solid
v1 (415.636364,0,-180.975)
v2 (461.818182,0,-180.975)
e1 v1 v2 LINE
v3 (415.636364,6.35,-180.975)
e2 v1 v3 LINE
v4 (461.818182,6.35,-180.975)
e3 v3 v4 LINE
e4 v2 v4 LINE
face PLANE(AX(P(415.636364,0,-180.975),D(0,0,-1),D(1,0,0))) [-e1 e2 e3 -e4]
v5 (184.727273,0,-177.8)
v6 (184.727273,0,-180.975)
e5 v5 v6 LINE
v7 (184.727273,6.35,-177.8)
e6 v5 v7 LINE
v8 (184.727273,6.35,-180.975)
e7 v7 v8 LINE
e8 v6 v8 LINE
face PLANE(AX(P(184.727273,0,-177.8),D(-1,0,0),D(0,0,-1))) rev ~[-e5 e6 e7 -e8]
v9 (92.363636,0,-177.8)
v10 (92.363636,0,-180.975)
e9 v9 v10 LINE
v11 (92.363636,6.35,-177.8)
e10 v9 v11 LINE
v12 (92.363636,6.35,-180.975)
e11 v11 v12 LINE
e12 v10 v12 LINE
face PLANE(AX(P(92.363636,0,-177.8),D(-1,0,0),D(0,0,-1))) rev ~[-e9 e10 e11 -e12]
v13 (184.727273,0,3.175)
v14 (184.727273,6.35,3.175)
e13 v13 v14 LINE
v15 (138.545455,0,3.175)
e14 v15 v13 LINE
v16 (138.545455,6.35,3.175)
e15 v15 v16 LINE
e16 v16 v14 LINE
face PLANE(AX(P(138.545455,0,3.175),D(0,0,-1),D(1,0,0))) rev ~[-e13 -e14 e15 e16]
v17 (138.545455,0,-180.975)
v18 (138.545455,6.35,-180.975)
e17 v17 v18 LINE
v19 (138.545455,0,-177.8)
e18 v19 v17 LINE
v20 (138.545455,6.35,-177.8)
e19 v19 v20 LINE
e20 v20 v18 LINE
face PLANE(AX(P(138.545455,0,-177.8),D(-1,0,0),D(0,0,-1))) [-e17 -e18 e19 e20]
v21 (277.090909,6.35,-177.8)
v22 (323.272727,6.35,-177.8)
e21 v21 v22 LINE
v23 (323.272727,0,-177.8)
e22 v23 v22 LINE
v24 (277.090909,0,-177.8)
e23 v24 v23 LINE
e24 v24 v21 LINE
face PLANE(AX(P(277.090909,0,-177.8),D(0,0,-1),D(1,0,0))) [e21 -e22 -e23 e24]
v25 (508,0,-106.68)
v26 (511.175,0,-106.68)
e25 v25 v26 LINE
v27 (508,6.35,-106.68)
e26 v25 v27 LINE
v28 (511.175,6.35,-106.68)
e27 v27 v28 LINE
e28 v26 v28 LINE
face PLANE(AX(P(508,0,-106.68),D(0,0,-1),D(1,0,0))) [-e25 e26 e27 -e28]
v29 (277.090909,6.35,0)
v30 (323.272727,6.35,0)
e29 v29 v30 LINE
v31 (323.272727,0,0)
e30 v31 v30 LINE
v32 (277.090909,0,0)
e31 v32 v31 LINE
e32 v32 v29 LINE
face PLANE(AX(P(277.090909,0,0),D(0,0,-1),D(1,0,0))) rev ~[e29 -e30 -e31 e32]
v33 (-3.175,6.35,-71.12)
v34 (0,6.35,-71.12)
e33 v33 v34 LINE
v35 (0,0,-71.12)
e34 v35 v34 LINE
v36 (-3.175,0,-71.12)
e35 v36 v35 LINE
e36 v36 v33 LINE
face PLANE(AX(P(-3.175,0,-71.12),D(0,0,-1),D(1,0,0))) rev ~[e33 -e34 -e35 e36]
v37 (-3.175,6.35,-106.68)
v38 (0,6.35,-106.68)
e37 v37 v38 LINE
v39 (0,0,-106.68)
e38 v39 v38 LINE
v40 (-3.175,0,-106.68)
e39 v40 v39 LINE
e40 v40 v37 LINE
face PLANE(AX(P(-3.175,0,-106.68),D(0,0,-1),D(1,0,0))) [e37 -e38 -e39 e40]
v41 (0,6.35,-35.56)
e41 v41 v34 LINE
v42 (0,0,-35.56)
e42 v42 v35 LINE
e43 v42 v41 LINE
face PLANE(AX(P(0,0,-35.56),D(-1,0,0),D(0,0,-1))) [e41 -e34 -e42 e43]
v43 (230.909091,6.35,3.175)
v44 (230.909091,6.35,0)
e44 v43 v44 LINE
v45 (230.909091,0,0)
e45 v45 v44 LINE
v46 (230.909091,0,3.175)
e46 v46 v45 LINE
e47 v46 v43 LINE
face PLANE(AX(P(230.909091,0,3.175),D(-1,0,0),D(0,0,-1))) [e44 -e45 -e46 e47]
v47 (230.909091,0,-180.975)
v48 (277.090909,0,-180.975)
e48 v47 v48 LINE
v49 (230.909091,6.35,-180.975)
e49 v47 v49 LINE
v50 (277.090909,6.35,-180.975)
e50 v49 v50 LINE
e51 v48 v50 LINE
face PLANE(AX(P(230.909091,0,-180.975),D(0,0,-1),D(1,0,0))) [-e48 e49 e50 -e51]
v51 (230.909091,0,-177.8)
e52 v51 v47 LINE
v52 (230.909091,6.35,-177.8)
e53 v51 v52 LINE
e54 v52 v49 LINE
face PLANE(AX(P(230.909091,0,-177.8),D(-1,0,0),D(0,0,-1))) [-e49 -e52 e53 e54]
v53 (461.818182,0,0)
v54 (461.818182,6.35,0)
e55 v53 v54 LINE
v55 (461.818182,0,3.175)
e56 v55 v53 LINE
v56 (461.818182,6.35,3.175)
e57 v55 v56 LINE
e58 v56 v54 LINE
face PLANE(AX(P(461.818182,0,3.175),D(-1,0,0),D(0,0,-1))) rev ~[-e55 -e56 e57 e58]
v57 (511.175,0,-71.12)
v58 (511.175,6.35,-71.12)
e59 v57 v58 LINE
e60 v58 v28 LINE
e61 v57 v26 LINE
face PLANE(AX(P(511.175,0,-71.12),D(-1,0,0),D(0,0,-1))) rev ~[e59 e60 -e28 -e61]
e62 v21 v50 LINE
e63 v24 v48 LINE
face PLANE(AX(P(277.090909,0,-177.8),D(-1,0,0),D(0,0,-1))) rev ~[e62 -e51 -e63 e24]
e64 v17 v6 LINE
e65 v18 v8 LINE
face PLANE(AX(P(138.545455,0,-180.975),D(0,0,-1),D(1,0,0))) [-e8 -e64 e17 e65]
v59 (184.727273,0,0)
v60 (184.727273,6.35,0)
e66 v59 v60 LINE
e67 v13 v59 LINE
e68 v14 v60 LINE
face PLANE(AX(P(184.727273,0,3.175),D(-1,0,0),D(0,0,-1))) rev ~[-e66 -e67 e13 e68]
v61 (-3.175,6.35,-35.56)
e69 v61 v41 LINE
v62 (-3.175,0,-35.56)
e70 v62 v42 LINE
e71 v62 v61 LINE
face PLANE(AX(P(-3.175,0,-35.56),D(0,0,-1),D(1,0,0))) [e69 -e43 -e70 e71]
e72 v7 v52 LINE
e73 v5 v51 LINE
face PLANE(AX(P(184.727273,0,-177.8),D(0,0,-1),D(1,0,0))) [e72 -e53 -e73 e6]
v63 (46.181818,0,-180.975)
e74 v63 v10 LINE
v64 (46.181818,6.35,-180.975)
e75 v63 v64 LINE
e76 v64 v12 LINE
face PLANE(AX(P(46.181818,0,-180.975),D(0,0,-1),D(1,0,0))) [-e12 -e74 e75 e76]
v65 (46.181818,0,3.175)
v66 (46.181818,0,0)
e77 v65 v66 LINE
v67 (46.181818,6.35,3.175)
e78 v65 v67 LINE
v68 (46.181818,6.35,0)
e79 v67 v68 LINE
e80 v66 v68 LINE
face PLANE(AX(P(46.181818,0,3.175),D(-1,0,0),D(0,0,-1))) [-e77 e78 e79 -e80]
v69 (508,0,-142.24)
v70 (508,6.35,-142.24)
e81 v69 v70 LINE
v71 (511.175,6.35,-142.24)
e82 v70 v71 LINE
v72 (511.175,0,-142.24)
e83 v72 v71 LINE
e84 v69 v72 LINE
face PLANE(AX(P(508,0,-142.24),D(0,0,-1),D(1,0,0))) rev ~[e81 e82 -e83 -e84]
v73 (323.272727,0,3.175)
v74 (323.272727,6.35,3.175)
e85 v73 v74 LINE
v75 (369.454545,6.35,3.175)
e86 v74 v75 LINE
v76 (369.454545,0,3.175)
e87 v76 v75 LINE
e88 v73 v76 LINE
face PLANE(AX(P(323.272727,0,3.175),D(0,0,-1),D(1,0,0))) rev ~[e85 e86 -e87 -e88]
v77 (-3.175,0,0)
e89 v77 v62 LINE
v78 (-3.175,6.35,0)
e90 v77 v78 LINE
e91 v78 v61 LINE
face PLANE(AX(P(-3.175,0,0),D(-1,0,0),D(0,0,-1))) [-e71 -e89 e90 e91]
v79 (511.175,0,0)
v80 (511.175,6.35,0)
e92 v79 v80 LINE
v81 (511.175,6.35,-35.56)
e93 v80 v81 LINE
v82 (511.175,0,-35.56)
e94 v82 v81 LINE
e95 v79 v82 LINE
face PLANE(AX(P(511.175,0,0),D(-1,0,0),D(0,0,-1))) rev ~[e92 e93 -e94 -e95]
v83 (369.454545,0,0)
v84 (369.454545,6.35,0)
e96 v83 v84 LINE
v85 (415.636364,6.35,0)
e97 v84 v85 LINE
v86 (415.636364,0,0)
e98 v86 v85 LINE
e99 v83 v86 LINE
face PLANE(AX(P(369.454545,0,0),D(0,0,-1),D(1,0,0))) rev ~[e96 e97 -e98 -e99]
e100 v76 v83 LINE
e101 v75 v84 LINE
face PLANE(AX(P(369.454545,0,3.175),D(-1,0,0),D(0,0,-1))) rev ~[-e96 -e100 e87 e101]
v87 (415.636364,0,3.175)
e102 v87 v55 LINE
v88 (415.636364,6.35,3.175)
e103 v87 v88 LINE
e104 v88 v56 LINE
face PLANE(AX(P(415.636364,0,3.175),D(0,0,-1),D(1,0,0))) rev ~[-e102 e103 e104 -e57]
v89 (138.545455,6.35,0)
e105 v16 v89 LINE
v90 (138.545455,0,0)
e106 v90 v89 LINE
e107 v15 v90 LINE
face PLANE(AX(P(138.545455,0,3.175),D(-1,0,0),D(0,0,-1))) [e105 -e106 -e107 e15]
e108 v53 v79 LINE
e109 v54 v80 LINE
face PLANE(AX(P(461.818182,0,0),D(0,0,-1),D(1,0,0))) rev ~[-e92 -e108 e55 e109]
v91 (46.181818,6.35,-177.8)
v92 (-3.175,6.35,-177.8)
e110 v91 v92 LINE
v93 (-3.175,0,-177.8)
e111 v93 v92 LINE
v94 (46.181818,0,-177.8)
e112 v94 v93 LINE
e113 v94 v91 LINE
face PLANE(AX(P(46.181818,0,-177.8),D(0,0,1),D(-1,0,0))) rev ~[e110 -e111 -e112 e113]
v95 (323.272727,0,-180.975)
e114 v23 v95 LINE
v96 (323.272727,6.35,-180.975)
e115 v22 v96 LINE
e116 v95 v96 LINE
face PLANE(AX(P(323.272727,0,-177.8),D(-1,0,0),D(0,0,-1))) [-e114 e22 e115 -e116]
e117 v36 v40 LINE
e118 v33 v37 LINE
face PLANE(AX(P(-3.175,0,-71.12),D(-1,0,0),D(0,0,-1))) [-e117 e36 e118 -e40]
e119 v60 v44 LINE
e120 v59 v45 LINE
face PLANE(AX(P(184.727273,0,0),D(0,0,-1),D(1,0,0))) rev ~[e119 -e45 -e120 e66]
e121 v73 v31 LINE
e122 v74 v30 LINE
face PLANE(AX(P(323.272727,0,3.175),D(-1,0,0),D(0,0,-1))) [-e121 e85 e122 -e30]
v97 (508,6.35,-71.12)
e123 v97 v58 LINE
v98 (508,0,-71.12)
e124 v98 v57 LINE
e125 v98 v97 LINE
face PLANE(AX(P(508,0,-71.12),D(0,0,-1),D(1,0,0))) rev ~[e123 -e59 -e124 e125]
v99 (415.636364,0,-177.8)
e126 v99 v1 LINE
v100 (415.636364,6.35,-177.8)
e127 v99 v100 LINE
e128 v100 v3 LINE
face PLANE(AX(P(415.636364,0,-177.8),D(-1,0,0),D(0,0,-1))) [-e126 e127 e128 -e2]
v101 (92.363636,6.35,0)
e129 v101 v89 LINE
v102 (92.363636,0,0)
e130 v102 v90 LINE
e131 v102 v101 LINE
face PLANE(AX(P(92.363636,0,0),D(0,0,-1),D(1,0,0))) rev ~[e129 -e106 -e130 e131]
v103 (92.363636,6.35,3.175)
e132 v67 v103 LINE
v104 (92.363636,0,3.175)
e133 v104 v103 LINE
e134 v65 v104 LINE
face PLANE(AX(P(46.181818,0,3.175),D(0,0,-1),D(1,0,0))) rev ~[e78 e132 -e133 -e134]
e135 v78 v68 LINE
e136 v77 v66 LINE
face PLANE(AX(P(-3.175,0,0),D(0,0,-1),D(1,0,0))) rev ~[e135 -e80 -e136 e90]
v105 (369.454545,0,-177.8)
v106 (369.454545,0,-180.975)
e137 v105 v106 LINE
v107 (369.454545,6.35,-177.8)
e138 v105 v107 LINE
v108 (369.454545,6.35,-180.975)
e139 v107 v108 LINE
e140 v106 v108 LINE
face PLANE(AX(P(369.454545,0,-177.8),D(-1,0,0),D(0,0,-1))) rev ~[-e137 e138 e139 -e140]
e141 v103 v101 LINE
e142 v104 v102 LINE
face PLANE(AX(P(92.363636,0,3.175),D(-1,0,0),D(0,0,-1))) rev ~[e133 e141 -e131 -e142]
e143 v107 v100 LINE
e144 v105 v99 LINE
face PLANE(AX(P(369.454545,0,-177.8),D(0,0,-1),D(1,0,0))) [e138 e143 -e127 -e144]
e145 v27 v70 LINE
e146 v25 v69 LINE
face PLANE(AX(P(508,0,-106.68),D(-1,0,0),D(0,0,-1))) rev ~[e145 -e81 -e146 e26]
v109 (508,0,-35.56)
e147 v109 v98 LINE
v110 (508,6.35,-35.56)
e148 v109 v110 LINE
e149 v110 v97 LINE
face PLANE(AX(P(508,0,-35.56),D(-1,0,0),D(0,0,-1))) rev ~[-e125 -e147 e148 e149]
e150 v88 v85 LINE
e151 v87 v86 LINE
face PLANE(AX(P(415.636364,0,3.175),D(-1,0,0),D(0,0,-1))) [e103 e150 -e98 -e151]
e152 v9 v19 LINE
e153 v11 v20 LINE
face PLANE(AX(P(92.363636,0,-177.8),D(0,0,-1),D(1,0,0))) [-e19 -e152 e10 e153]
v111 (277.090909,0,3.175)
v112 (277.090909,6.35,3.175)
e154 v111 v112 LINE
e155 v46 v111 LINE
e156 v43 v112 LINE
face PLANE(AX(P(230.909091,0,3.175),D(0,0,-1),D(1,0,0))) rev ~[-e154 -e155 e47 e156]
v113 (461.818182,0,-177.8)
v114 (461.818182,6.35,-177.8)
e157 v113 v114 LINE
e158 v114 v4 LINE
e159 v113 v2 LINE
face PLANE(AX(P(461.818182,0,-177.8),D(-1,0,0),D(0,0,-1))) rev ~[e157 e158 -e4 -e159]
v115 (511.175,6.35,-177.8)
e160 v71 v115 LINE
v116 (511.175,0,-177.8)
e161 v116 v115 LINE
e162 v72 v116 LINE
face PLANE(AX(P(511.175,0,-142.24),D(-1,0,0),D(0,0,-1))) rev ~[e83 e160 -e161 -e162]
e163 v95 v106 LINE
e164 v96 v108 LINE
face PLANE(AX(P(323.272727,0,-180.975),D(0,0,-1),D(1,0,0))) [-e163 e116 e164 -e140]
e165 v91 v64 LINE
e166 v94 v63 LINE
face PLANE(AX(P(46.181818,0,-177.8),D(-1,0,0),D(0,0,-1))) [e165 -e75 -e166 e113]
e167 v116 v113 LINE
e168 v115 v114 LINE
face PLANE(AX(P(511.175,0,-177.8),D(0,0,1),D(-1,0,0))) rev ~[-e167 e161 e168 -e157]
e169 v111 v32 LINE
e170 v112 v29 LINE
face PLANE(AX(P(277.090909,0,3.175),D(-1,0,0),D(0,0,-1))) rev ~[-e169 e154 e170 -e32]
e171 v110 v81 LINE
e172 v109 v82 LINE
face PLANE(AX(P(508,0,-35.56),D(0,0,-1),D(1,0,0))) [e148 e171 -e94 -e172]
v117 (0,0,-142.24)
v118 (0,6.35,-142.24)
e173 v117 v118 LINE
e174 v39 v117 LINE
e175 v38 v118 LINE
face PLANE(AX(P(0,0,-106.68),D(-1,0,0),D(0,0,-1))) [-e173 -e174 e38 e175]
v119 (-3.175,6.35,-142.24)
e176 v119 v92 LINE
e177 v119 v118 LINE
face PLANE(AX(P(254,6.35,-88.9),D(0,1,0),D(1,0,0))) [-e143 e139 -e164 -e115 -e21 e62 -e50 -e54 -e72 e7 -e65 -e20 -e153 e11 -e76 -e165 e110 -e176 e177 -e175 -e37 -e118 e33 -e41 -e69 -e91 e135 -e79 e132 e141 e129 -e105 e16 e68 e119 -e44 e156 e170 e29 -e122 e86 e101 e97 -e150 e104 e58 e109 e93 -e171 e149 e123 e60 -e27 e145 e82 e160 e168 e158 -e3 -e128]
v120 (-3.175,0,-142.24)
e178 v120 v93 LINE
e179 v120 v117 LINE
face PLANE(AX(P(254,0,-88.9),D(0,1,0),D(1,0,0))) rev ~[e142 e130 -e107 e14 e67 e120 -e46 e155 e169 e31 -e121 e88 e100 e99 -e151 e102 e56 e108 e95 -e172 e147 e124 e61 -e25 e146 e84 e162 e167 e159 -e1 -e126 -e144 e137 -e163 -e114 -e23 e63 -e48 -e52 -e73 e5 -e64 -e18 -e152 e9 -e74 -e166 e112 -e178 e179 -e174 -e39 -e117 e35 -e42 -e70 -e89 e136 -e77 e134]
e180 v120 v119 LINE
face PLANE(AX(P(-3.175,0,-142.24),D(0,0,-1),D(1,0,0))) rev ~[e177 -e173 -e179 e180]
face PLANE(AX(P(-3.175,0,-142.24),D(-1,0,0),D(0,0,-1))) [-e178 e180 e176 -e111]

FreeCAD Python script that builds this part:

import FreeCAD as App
import Part
import Sketcher
Q = App.Units.Quantity


def add_polygon(sketch, points):
    """Adds a closed chain of lines whose ends are joined by coincident constraints."""
    first, n = sketch.GeometryCount, len(points)
    for a, b in zip(points, points[1:] + points[:1]):
        sketch.addGeometry(Part.LineSegment(App.Vector(*a, 0), App.Vector(*b, 0)), False)
    for i in range(n):
        sketch.addConstraint(Sketcher.Constraint("Coincident", first + i, 2, first + (i + 1) % n, 1))

doc = App.newDocument("Part")
body = doc.addObject("PartDesign::Body", "Body")

sketch1 = doc.addObject("Sketcher::SketchObject", "Sketch")
body.addObject(sketch1)
sketch1.AttachmentSupport = (doc.XZ_Plane, [""])
sketch1.MapMode = "FlatFace"
add_polygon(sketch1, [(0, -71.1), (0, -35.6), (-3.2, -35.6), (-3.2, 0), (46.2, 0), (46.2, 3.2), (92.4, 3.2), (92.4, 0), (138.5, 0), (138.5, 3.2), (184.7, 3.2), (184.7, 0), (230.9, 0), (230.9, 3.2), (277.1, 3.2), (277.1, 0), (323.3, 0), (323.3, 3.2), (369.5, 3.2), (369.5, 0), (415.6, 0), (415.6, 3.2), (461.8, 3.2), (461.8, 0), (511.2, 0), (511.2, -35.6), (508, -35.6), (508, -71.1), (511.2, -71.1), (511.2, -106.7), (508, -106.7), (508, -142.2), (511.2, -142.2), (511.2, -177.8), (461.8, -177.8), (461.8, -181), (415.6, -181), (415.6, -177.8), (369.5, -177.8), (369.5, -181), (323.3, -181), (323.3, -177.8), (277.1, -177.8), (277.1, -181), (230.9, -181), (230.9, -177.8), (184.7, -177.8), (184.7, -181), (138.5, -181), (138.5, -177.8), (92.4, -177.8), (92.4, -181), (46.2, -181), (46.2, -177.8), (-3.2, -177.8), (-3.2, -142.2), (0, -142.2), (0, -106.7), (-3.2, -106.7), (-3.2, -71.1)])
sketch1.addConstraint([
    Sketcher.Constraint("Vertical", 0),
    Sketcher.Constraint("Horizontal", 1),
    Sketcher.Constraint("Vertical", 2),
    Sketcher.Constraint("Horizontal", 3),
    Sketcher.Constraint("Vertical", 4),
    Sketcher.Constraint("Horizontal", 5),
    Sketcher.Constraint("Vertical", 6),
    Sketcher.Constraint("Horizontal", 7),
    Sketcher.Constraint("Vertical", 8),
    Sketcher.Constraint("Horizontal", 9),
    Sketcher.Constraint("Vertical", 10),
    Sketcher.Constraint("Horizontal", 11),
    Sketcher.Constraint("Vertical", 12),
    Sketcher.Constraint("Horizontal", 13),
    Sketcher.Constraint("Vertical", 14),
    Sketcher.Constraint("Horizontal", 15),
    Sketcher.Constraint("Vertical", 16),
    Sketcher.Constraint("Horizontal", 17),
    Sketcher.Constraint("Vertical", 18),
    Sketcher.Constraint("Horizontal", 19),
    Sketcher.Constraint("Vertical", 20),
    Sketcher.Constraint("Horizontal", 21),
    Sketcher.Constraint("Vertical", 22),
    Sketcher.Constraint("Horizontal", 23),
    Sketcher.Constraint("Vertical", 24),
    Sketcher.Constraint("Horizontal", 25),
    Sketcher.Constraint("Vertical", 26),
    Sketcher.Constraint("Horizontal", 27),
    Sketcher.Constraint("Vertical", 28),
    Sketcher.Constraint("Horizontal", 29),
    Sketcher.Constraint("Vertical", 30),
    Sketcher.Constraint("Horizontal", 31),
    Sketcher.Constraint("Vertical", 32),
    Sketcher.Constraint("Horizontal", 33),
    Sketcher.Constraint("Vertical", 34),
    Sketcher.Constraint("Horizontal", 35),
    Sketcher.Constraint("Vertical", 36),
    Sketcher.Constraint("Horizontal", 37),
    Sketcher.Constraint("Vertical", 38),
    Sketcher.Constraint("Horizontal", 39),
    Sketcher.Constraint("Vertical", 40),
    Sketcher.Constraint("Horizontal", 41),
    Sketcher.Constraint("Vertical", 42),
    Sketcher.Constraint("Horizontal", 43),
    Sketcher.Constraint("Vertical", 44),
    Sketcher.Constraint("Horizontal", 45),
    Sketcher.Constraint("Vertical", 46),
    Sketcher.Constraint("Horizontal", 47),
    Sketcher.Constraint("Vertical", 48),
    Sketcher.Constraint("Horizontal", 49),
    Sketcher.Constraint("Vertical", 50),
    Sketcher.Constraint("Horizontal", 51),
    Sketcher.Constraint("Vertical", 52),
    Sketcher.Constraint("Horizontal", 53),
    Sketcher.Constraint("Vertical", 54),
    Sketcher.Constraint("Horizontal", 55),
    Sketcher.Constraint("Vertical", 56),
    Sketcher.Constraint("Horizontal", 57),
    Sketcher.Constraint("Vertical", 58),
    Sketcher.Constraint("Horizontal", 59),
    Sketcher.Constraint("PointOnObject", 0, 2, -2),
    Sketcher.Constraint("PointOnObject", 2, 2, -1),
    Sketcher.Constraint("PointOnObject", 6, 2, -1),
    Sketcher.Constraint("PointOnObject", 10, 2, -1),
    Sketcher.Constraint("PointOnObject", 14, 2, -1),
    Sketcher.Constraint("PointOnObject", 18, 2, -1),
    Sketcher.Constraint("PointOnObject", 22, 2, -1),
    Sketcher.Constraint("PointOnObject", 55, 2, -2),
    Sketcher.Constraint("Horizontal", 5, 2, 8, 2),
    Sketcher.Constraint("Horizontal", 9, 2, 12, 2),
    Sketcher.Constraint("Horizontal", 13, 2, 16, 2),
    Sketcher.Constraint("Horizontal", 17, 2, 20, 2),
    Sketcher.Constraint("Horizontal", 1, 2, 24, 2),
    Sketcher.Constraint("Horizontal", 33, 2, 36, 2),
    Sketcher.Constraint("Horizontal", 35, 2, 38, 2),
    Sketcher.Constraint("Horizontal", 37, 2, 40, 2),
    Sketcher.Constraint("Horizontal", 39, 2, 42, 2),
    Sketcher.Constraint("Horizontal", 41, 2, 44, 2),
    Sketcher.Constraint("Horizontal", 43, 2, 46, 2),
    Sketcher.Constraint("Horizontal", 45, 2, 48, 2),
    Sketcher.Constraint("Horizontal", 47, 2, 50, 2),
    Sketcher.Constraint("Horizontal", 49, 2, 52, 2),
    Sketcher.Constraint("Horizontal", 31, 2, 54, 2),
    Sketcher.Constraint("Horizontal", 29, 2, 56, 2),
    Sketcher.Constraint("Horizontal", 27, 2, 58, 2),
    Sketcher.Constraint("Vertical", 24, 2, 27, 2),
    Sketcher.Constraint("Vertical", 26, 2, 29, 2),
    Sketcher.Constraint("Vertical", 28, 2, 31, 2),
    Sketcher.Constraint("Vertical", 22, 2, 33, 2),
    Sketcher.Constraint("Vertical", 20, 2, 35, 2),
    Sketcher.Constraint("Vertical", 18, 2, 37, 2),
    Sketcher.Constraint("Vertical", 16, 2, 39, 2),
    Sketcher.Constraint("Vertical", 14, 2, 41, 2),
    Sketcher.Constraint("Vertical", 12, 2, 43, 2),
    Sketcher.Constraint("Vertical", 10, 2, 45, 2),
    Sketcher.Constraint("Vertical", 8, 2, 47, 2),
    Sketcher.Constraint("Vertical", 6, 2, 49, 2),
    Sketcher.Constraint("Vertical", 4, 2, 51, 2),
    Sketcher.Constraint("Vertical", 2, 2, 53, 2),
    Sketcher.Constraint("Vertical", 54, 2, 57, 2),
    Sketcher.Constraint("Equal", 5, 7),
    Sketcher.Constraint("Equal", 7, 9),
    Sketcher.Constraint("Equal", 9, 11),
    Sketcher.Constraint("Equal", 11, 13),
    Sketcher.Constraint("Equal", 13, 15),
    Sketcher.Constraint("Equal", 15, 17),
    Sketcher.Constraint("Equal", 17, 19),
    Sketcher.Constraint("Equal", 19, 21),
    Sketcher.Constraint("Equal", 3, 23),
    Sketcher.Constraint("Equal", 1, 25),
    Sketcher.Constraint("Equal", 0, 2),
    Sketcher.Constraint("Equal", 59, 4),
    Sketcher.Constraint("Equal", 26, 28),
    Sketcher.Constraint("Equal", 28, 30),
    Sketcher.Constraint("Equal", 30, 32),
    Sketcher.Constraint("Equal", 22, 34),
    Sketcher.Constraint("DistanceY", 0, 1, 0, 2, Q("1.4 in")),
    Sketcher.Constraint("DistanceX", -1, 1, 25, 2, Q("20 in")),
    Sketcher.Constraint("DistanceX", 1, 2, 1, 1, Q("0.125 in")),
    Sketcher.Constraint("DistanceX", 3, 1, 3, 2, 49.356818),
])
pad1 = doc.addObject("PartDesign::Pad", "Pad")
body.addObject(pad1)
pad1.Profile = sketch1
pad1.Length = Q("0.25 in")
pad1.Reversed = True

doc.recompute()
